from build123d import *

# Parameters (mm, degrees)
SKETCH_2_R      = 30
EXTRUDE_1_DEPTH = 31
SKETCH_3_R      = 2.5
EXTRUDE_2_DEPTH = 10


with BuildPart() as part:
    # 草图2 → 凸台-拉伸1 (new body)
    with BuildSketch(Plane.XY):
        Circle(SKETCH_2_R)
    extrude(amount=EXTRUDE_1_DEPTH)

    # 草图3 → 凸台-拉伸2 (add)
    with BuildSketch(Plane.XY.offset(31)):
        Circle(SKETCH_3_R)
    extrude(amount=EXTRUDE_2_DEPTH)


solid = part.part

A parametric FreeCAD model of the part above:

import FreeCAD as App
import Part
import Sketcher

doc = App.newDocument("Part")
body = doc.addObject("PartDesign::Body", "Body")

# Sketch on XY plane
sketch1 = body.newObject("Sketcher::SketchObject", "Sketch")
sketch1.AttachmentSupport = (doc.getObject("XY_Plane"), [""])
sketch1.MapMode = "FlatFace"
sketch1.addGeometry(Part.Circle(App.Vector(0, 0, 0), App.Vector(0, 0, 1), 30), False)
sketch1.addConstraint([
    Sketcher.Constraint("Coincident", 0, 3, -1, 1),
    Sketcher.Constraint("Diameter", 0, 60.0),
])
pad1 = body.newObject("PartDesign::Pad", "Pad")
pad1.Profile = sketch1
pad1.Length = 31

# Sketch on XY plane
sketch2 = body.newObject("Sketcher::SketchObject", "Sketch001")
sketch2.AttachmentSupport = (doc.getObject("XY_Plane"), [""])
sketch2.MapMode = "FlatFace"
sketch2.AttachmentOffset = App.Placement(App.Vector(0, 0, 31), App.Rotation())
sketch2.addGeometry(Part.Circle(App.Vector(0, 0, 0), App.Vector(0, 0, 1), 2.5), False)
sketch2.addConstraint([
    Sketcher.Constraint("Coincident", 0, 3, -1, 1),
    Sketcher.Constraint("Diameter", 0, 5.0),
])
pad2 = body.newObject("PartDesign::Pad", "Pad001")
pad2.Profile = sketch2
pad2.Length = 10

doc.recompute()
